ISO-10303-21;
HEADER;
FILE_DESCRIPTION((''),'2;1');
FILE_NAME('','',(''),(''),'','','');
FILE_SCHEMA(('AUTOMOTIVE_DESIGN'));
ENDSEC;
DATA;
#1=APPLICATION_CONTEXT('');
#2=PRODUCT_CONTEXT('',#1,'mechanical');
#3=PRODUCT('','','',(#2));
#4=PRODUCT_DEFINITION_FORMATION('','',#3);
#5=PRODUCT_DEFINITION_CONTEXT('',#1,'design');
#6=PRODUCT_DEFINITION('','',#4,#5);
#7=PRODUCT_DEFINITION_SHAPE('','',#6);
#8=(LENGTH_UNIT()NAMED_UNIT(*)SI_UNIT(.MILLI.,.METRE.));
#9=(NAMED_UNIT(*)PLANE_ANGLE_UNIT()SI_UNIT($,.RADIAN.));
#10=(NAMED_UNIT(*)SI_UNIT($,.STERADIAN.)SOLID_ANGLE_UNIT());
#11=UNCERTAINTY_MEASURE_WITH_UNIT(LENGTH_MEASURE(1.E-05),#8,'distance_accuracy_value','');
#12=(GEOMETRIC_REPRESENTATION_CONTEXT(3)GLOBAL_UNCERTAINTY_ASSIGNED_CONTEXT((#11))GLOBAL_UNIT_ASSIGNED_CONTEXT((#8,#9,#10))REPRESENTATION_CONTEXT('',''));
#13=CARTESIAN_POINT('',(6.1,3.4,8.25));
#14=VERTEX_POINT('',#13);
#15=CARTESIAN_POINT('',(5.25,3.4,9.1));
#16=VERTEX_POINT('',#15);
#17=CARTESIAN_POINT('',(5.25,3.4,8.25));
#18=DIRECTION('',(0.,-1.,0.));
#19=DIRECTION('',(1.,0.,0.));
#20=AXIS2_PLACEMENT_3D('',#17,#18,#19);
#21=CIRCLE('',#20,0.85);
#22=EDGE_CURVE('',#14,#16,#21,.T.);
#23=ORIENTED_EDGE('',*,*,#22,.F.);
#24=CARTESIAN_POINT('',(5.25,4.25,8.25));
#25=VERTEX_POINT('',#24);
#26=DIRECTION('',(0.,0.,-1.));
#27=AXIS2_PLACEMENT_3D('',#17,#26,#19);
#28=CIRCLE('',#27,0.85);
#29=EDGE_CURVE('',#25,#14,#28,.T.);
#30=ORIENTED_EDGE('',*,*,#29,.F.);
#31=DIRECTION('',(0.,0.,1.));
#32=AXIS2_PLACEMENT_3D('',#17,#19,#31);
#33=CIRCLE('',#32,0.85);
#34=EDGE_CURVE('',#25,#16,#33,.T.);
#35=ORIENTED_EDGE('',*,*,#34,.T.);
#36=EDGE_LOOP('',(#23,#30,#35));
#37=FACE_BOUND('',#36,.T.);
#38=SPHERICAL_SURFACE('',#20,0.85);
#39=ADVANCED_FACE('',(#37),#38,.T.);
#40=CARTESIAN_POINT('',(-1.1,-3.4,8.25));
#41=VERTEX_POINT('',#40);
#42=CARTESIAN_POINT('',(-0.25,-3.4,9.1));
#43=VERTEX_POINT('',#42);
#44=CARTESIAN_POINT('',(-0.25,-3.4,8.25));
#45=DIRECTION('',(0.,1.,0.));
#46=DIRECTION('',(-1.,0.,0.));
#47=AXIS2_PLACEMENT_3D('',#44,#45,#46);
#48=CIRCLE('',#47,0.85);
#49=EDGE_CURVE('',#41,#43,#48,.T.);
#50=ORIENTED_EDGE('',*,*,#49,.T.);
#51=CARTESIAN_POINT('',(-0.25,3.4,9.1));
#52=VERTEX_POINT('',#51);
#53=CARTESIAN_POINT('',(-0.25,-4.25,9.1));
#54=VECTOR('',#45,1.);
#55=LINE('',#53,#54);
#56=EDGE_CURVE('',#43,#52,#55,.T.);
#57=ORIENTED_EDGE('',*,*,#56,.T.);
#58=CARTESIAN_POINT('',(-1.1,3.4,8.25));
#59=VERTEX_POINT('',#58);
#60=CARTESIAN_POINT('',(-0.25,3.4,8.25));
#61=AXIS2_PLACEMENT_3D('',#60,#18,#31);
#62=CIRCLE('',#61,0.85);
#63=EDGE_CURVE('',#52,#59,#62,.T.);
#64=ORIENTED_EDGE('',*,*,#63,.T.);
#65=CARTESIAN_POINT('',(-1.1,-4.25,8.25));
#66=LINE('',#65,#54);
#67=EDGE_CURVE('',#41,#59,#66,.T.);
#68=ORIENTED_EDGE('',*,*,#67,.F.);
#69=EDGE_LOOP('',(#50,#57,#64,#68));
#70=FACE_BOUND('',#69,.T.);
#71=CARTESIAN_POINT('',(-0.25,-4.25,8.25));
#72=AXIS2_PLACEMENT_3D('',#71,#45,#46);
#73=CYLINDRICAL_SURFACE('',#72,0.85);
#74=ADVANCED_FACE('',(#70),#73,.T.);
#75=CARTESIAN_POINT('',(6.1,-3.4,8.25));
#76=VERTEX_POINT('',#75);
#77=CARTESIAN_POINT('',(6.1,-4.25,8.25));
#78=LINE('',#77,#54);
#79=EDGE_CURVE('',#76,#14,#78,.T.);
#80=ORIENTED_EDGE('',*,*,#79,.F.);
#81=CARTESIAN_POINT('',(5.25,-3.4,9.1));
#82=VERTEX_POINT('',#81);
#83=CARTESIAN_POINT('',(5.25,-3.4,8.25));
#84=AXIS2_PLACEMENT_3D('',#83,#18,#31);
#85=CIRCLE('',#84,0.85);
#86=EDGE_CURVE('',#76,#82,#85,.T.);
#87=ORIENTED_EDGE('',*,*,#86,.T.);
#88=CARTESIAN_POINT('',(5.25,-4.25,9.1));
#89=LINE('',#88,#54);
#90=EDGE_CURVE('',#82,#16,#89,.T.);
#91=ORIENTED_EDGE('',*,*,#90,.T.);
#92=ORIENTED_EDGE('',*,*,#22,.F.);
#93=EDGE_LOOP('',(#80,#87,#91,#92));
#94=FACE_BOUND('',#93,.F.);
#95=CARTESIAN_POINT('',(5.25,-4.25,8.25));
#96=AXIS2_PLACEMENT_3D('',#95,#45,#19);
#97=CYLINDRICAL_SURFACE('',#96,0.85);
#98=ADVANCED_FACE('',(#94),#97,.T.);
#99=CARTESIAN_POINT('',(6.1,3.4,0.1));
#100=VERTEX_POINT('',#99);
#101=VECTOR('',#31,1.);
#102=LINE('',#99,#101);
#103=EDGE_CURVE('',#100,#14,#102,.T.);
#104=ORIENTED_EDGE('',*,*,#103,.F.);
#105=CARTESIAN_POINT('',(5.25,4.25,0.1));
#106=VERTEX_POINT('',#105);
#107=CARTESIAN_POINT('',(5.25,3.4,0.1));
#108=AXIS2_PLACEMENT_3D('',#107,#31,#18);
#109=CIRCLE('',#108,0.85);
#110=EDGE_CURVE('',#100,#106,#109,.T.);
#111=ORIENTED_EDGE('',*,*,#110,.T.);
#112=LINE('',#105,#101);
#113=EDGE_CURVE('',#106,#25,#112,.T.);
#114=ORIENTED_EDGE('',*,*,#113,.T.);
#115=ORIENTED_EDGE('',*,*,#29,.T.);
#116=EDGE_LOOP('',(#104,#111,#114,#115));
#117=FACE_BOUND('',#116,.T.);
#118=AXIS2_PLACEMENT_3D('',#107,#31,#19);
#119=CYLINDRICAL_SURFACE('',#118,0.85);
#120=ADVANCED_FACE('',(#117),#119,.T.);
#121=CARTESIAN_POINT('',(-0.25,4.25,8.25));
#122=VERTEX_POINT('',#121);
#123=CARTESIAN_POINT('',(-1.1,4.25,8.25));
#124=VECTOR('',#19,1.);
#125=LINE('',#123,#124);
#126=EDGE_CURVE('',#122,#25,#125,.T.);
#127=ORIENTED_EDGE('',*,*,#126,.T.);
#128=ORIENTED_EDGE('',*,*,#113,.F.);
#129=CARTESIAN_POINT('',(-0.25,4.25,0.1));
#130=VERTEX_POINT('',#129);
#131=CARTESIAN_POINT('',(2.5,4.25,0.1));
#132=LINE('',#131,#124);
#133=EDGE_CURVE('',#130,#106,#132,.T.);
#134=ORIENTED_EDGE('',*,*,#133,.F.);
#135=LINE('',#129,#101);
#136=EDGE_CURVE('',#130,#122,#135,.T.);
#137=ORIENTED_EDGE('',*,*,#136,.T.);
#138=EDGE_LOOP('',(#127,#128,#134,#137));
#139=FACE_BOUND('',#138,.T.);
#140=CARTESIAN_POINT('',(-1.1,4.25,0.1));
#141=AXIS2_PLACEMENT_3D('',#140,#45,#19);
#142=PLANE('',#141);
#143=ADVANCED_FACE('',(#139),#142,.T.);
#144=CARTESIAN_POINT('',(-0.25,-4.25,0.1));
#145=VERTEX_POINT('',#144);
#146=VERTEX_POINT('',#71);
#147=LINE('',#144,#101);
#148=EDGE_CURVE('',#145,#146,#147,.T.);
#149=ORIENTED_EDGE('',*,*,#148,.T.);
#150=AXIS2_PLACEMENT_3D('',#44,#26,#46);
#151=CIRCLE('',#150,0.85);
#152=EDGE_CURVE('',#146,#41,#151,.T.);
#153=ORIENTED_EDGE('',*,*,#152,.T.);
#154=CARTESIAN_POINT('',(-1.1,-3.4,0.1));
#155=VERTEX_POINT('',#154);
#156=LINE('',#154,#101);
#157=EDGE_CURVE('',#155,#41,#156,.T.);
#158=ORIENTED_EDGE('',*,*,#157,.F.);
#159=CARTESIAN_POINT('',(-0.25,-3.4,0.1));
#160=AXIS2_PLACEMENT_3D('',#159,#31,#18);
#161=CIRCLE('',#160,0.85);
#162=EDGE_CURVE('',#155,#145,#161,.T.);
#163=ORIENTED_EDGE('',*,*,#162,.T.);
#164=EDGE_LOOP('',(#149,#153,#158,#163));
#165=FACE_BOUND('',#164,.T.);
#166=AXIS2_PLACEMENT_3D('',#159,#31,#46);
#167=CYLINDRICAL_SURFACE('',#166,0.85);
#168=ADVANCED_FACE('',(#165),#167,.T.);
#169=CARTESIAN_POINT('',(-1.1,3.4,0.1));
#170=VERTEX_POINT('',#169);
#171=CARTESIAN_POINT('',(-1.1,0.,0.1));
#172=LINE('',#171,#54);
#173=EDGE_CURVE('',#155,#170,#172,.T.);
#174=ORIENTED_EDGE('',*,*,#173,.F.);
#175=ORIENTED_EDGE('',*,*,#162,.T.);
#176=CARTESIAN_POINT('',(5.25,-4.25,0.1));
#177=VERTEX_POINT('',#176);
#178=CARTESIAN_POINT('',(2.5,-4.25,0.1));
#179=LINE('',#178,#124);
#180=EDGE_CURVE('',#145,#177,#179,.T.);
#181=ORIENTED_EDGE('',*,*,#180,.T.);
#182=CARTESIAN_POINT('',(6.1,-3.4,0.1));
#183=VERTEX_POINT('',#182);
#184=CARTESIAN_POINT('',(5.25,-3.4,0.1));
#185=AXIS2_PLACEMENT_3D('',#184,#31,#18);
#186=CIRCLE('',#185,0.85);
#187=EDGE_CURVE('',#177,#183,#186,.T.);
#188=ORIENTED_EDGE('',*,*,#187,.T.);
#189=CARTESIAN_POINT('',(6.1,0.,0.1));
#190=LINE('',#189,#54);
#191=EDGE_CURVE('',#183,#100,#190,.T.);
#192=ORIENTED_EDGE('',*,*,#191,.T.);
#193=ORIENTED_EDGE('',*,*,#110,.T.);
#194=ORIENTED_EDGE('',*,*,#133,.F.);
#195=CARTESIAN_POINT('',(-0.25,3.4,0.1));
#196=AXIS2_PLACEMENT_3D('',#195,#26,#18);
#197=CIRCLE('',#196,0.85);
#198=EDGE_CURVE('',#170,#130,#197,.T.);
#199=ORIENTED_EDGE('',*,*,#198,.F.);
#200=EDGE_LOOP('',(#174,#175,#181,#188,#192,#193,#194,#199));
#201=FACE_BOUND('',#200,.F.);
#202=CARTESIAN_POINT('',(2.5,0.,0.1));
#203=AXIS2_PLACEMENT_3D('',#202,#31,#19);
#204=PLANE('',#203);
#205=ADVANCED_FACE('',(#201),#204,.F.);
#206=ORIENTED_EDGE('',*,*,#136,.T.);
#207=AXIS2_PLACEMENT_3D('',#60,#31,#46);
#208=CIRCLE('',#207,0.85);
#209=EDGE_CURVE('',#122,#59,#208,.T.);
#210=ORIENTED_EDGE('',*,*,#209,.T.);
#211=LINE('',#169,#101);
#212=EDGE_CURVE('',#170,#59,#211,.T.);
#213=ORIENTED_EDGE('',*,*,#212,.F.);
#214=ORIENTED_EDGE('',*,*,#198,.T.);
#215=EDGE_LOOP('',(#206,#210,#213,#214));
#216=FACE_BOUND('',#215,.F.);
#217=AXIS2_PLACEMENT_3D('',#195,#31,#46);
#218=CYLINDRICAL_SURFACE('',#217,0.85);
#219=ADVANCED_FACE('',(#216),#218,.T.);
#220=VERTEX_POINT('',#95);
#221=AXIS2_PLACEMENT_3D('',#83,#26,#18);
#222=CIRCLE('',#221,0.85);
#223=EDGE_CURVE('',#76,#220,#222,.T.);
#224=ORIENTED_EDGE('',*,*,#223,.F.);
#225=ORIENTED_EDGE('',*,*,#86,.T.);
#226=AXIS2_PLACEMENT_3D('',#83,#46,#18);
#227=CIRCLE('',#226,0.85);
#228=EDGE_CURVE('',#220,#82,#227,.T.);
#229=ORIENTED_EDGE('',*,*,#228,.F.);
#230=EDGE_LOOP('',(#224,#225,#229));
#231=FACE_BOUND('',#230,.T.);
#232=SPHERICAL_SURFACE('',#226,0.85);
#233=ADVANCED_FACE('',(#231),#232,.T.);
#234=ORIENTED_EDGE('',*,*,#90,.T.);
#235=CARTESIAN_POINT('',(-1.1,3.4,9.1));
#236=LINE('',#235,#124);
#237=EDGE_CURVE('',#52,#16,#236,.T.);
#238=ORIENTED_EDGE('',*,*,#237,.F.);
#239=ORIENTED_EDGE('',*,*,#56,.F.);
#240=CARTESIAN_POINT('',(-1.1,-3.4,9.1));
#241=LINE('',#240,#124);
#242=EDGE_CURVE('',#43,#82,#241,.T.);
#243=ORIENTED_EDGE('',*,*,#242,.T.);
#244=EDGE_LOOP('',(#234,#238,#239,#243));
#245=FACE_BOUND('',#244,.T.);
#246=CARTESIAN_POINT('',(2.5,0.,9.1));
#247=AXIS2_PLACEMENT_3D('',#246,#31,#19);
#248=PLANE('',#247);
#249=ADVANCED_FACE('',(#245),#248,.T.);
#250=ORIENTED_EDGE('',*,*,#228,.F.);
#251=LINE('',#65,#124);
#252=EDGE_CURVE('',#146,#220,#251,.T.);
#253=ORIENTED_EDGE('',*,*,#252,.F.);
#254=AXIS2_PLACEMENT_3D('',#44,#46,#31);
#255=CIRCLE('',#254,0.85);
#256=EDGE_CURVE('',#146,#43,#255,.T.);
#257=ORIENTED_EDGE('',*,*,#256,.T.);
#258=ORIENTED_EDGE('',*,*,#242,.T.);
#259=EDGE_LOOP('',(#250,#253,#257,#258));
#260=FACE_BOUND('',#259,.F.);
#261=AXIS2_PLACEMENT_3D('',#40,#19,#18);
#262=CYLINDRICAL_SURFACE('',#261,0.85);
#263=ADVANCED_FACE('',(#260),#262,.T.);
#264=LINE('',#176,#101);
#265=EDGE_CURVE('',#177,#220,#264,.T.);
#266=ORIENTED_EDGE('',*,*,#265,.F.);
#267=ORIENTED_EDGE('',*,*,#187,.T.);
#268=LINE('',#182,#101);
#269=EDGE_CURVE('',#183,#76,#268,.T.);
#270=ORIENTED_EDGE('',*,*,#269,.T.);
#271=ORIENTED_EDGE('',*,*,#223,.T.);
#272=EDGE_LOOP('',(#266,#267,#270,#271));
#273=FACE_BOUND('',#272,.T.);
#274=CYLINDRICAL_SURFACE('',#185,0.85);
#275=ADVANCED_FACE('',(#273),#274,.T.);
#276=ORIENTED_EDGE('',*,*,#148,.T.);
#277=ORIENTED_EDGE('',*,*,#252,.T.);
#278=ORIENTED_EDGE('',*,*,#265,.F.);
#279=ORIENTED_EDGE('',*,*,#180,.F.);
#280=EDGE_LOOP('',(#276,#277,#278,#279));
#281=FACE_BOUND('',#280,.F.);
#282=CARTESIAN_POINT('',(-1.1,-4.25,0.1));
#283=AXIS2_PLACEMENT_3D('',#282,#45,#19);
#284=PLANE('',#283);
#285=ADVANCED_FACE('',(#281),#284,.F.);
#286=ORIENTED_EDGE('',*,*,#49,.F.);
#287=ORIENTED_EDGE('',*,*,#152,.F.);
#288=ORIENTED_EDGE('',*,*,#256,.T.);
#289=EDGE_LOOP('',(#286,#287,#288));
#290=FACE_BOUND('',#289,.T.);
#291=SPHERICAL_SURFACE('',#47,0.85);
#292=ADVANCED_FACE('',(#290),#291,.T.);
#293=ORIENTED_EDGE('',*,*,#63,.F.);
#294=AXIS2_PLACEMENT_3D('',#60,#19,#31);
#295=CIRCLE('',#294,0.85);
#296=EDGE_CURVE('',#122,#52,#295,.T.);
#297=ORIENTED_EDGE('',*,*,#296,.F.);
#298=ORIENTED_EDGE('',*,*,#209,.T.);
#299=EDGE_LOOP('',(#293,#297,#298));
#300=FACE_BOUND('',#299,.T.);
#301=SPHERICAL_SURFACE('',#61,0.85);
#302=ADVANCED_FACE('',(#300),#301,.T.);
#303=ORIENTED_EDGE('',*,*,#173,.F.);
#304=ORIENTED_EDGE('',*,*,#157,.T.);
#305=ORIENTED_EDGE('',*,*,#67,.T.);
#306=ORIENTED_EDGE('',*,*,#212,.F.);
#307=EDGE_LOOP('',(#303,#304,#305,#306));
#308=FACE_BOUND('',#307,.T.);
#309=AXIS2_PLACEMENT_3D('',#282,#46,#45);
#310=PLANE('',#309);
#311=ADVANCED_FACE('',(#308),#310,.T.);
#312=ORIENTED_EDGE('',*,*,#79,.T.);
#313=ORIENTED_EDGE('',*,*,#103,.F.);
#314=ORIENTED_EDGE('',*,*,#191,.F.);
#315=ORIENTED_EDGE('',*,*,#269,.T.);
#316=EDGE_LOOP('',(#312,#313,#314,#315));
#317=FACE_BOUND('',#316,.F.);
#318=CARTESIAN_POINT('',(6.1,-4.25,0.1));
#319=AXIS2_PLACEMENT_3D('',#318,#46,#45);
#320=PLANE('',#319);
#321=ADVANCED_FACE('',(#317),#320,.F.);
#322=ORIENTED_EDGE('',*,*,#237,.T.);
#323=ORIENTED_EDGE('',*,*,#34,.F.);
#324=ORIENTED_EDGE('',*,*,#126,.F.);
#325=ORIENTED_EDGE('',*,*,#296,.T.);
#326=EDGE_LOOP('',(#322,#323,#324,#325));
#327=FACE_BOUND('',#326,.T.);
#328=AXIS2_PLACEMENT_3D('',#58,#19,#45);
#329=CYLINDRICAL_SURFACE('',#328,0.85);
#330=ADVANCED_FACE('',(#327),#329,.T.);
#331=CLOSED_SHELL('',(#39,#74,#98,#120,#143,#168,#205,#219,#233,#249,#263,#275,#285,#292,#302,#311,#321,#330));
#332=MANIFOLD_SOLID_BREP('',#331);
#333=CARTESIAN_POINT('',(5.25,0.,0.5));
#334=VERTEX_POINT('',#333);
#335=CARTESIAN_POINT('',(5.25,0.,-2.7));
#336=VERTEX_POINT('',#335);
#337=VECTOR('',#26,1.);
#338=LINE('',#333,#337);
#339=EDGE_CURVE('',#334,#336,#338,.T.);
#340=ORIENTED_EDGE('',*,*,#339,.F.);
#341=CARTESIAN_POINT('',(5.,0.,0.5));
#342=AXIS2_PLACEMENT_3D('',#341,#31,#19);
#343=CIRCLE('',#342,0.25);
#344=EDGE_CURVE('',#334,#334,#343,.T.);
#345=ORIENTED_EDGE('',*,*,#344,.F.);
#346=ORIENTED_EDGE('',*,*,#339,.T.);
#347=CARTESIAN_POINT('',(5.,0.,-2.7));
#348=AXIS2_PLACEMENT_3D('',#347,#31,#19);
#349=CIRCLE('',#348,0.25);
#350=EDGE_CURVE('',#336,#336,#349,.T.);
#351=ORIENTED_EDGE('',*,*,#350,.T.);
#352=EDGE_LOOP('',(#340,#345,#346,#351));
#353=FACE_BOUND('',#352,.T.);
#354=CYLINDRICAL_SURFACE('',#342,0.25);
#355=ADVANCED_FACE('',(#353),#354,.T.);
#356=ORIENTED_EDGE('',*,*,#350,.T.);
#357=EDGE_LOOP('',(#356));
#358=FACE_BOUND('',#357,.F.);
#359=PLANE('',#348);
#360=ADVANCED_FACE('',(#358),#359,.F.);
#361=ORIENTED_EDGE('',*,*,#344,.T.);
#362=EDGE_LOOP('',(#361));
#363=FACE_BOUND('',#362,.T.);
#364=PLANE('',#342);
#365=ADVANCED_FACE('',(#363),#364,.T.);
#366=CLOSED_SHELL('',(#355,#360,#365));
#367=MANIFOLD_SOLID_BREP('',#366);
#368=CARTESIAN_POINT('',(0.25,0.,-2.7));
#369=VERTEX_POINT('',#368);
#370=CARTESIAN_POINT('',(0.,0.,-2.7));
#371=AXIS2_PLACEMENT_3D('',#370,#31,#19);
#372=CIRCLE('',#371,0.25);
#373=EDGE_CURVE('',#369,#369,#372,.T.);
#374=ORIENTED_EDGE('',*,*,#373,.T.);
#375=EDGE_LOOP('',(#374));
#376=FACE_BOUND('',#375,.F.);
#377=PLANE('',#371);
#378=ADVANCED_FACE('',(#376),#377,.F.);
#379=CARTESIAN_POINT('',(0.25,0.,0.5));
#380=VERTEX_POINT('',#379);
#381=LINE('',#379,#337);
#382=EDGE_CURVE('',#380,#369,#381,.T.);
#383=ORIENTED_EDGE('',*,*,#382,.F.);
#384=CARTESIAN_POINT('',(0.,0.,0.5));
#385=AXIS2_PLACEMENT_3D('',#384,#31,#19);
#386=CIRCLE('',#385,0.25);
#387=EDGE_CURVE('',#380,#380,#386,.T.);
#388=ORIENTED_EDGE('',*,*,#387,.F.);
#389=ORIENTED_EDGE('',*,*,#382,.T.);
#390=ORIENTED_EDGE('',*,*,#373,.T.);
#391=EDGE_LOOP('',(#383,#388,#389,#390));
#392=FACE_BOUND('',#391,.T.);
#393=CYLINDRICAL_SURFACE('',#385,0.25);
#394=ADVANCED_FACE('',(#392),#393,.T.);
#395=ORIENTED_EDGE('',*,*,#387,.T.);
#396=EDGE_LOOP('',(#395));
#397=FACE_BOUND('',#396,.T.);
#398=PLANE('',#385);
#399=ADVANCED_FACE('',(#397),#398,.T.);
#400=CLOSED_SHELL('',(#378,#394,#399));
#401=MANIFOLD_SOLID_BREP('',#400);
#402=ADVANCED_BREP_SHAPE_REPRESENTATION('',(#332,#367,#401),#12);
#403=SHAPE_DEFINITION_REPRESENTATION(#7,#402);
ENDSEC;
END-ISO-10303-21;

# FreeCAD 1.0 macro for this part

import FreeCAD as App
import Part
import Sketcher
from FreeCAD import Vector
Q = App.Units.Quantity


def edges_at(feature, points):
    """Names of the edges that pass closest to the given points."""
    edges = feature.Shape.Edges
    near = lambda p: min(range(len(edges)), key=lambda i: edges[i].distToShape(Part.Vertex(*p))[0])
    return sorted({f"Edge{near(p) + 1}" for p in points})

doc = App.newDocument("Part")
body = doc.addObject("PartDesign::Body", "Body")

sketch1 = body.newObject("Sketcher::SketchObject", "Sketch")
sketch1.AttachmentSupport = (doc.getObject("XY_Plane"), [""])
sketch1.MapMode = "FlatFace"
sketch1.AttachmentOffset = App.Placement(Vector(0, 0, 0.1), App.Rotation())
sketch1.addGeometry([
    Part.LineSegment(Vector(-1, 4, 0), Vector(-1, -4, 0)),
    Part.LineSegment(Vector(-1, -4, 0), Vector(6, -4, 0)),
    Part.LineSegment(Vector(6, -4, 0), Vector(6, 4, 0)),
    Part.LineSegment(Vector(6, 4, 0), Vector(-1, 4, 0)),
], False)
sketch1.addConstraint([
    Sketcher.Constraint("Coincident", 0, 2, 1, 1),
    Sketcher.Constraint("Coincident", 1, 2, 2, 1),
    Sketcher.Constraint("Coincident", 2, 2, 3, 1),
    Sketcher.Constraint("Coincident", 3, 2, 0, 1),
    Sketcher.Constraint("Vertical", 0),
    Sketcher.Constraint("Horizontal", 1),
    Sketcher.Constraint("Vertical", 2),
    Sketcher.Constraint("Horizontal", 3),
    Sketcher.Constraint("DistanceX", 1, 1, 1, 2, Q("7.2 mm")),
    Sketcher.Constraint("DistanceY", 0, 2, 0, 1, Q("8.5 mm")),
    Sketcher.Constraint("DistanceX", 0, 2, -1, 1, Q("1.1 mm")),
    Sketcher.Constraint("DistanceY", 0, 2, -1, 1, Q("4.25 mm")),
])
pad1 = body.newObject("PartDesign::Pad", "Pad")
pad1.Profile = sketch1
pad1.Length = 9
doc.recompute()

fillet = body.newObject("PartDesign::Fillet", "Fillet")
fillet.Base = (pad1, edges_at(pad1, [
    (-1.1, 0, 9.1),
    (-1.1, -4.25, 4.6),
    (2.5, -4.25, 9.1),
    (6.1, -4.25, 4.6),
    (6.1, 0, 9.1),
    (6.1, 4.25, 4.6),
    (2.5, 4.25, 9.1),
    (-1.1, 4.25, 4.6),
]))
fillet.Radius = 0.85
body2 = doc.addObject("PartDesign::Body", "Body001")
body2.AllowCompound = True

sketch2 = body2.newObject("Sketcher::SketchObject", "Sketch001")
sketch2.AttachmentSupport = (doc.getObject("XY_Plane001"), [""])
sketch2.MapMode = "FlatFace"
sketch2.AttachmentOffset = App.Placement(Vector(0, 0, 0.5), App.Rotation())
sketch2.addGeometry([
    Part.Circle(Vector(0, 0, 0), Vector(0, 0, 1), 0.25),
    Part.Circle(Vector(5, 0, 0), Vector(0, 0, 1), 0.25),
], False)
sketch2.addConstraint([
    Sketcher.Constraint("Coincident", 0, 3, -1, 1),
    Sketcher.Constraint("Equal", 0, 1),
    Sketcher.Constraint("PointOnObject", 1, 3, -1),
    Sketcher.Constraint("Diameter", 0, Q("0.5 mm")),
    Sketcher.Constraint("DistanceX", -1, 1, 1, 3, Q("5 mm")),
])
pad2 = body2.newObject("PartDesign::Pad", "Pad001")
pad2.Profile = sketch2
pad2.Length = 3.2
pad2.Reversed = True

doc.recompute()
